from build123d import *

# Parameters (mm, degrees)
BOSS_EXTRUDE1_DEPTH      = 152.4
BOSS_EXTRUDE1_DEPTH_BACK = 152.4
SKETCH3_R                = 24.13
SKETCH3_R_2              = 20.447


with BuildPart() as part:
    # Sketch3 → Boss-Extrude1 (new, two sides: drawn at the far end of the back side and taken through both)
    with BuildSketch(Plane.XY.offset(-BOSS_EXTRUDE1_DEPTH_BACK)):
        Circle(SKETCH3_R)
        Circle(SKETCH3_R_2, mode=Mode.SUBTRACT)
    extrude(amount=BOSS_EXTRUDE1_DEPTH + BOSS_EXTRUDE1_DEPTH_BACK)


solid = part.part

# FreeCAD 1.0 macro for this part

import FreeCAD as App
import Part
import Sketcher

V = App.Vector
Q = App.Units.Quantity

doc = App.newDocument("Part")
body = doc.addObject("PartDesign::Body", "Body")

sketch1 = doc.addObject("Sketcher::SketchObject", "Sketch")
body.addObject(sketch1)
sketch1.AttachmentSupport = (doc.XY_Plane, [""])
sketch1.MapMode = "FlatFace"
sketch1.addGeometry(Part.Circle(V(0, 0, 0), V(0, 0, 1), 24.13), False)
sketch1.addGeometry(Part.Circle(V(0, 0, 0), V(0, 0, 1), 20.447), False)
sketch1.addConstraint(Sketcher.Constraint("Coincident", 0, 3, -1, 1))
sketch1.addConstraint(Sketcher.Constraint("Coincident", 1, 3, -1, 1))
sketch1.addConstraint(Sketcher.Constraint("Diameter", 0, Q("1.9 in")))
sketch1.addConstraint(Sketcher.Constraint("Diameter", 1, Q("1.61 in")))
pad1 = doc.addObject("PartDesign::Pad", "Pad")
body.addObject(pad1)
pad1.Profile = sketch1
pad1.Type = "TwoLengths"
pad1.Length = Q("6 in")
pad1.Length2 = Q("6 in")

doc.recompute()
